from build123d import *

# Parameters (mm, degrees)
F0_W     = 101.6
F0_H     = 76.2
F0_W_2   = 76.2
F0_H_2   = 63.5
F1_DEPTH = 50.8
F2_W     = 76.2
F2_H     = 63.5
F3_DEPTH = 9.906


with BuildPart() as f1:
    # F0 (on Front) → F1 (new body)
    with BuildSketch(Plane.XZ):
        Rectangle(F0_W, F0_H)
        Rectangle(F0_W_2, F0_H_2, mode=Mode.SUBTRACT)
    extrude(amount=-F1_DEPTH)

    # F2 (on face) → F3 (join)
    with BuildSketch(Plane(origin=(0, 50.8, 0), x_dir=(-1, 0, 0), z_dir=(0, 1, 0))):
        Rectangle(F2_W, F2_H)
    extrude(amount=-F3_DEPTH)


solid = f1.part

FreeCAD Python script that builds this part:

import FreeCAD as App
import Part
import Sketcher
Q = App.Units.Quantity


def add_polygon(sketch, points):
    """Adds a closed chain of lines whose ends are joined by coincident constraints."""
    first, n = sketch.GeometryCount, len(points)
    for a, b in zip(points, points[1:] + points[:1]):
        sketch.addGeometry(Part.LineSegment(App.Vector(*a, 0), App.Vector(*b, 0)), False)
    for i in range(n):
        sketch.addConstraint(Sketcher.Constraint("Coincident", first + i, 2, first + (i + 1) % n, 1))

doc = App.newDocument("Part")
body = doc.addObject("PartDesign::Body", "Body")

sketch1 = doc.addObject("Sketcher::SketchObject", "Sketch")
body.addObject(sketch1)
sketch1.AttachmentSupport = (doc.XZ_Plane, [""])
sketch1.MapMode = "FlatFace"
add_polygon(sketch1, [(-51, 38), (-51, -38), (51, -38), (51, 38)])
add_polygon(sketch1, [(38, -32), (-38, -32), (-38, 32), (38, 32)])
sketch1.addConstraint([
    Sketcher.Constraint("Vertical", 0),
    Sketcher.Constraint("Horizontal", 1),
    Sketcher.Constraint("Vertical", 2),
    Sketcher.Constraint("Horizontal", 3),
    Sketcher.Constraint("Horizontal", 4),
    Sketcher.Constraint("Vertical", 5),
    Sketcher.Constraint("Horizontal", 6),
    Sketcher.Constraint("Vertical", 7),
    Sketcher.Constraint("Symmetric", 0, 2, 2, 2, -1, 1),
    Sketcher.Constraint("Symmetric", 4, 2, 6, 2, -1, 1),
    Sketcher.Constraint("Equal", 6, 0),
    Sketcher.Constraint("DistanceX", 1, 1, 1, 2, Q("4 in")),
    Sketcher.Constraint("DistanceX", 4, 2, 4, 1, Q("3 in")),
    Sketcher.Constraint("DistanceY", 5, 1, 5, 2, Q("2.5 in")),
])
pad1 = doc.addObject("PartDesign::Pad", "Pad")
body.addObject(pad1)
pad1.Profile = sketch1
pad1.Length = Q("2 in")
pad1.Reversed = True

sketch2 = doc.addObject("Sketcher::SketchObject", "Sketch001")
body.addObject(sketch2)
sketch2.AttachmentSupport = (doc.XZ_Plane, [""])
sketch2.MapMode = "FlatFace"
sketch2.AttachmentOffset = App.Placement(App.Vector(0, 0, -2 * 25.4), App.Rotation())
add_polygon(sketch2, [(38, 32), (38, -32), (-38, -32), (-38, 32)])
sketch2.addConstraint([
    Sketcher.Constraint("Vertical", 0),
    Sketcher.Constraint("Horizontal", 1),
    Sketcher.Constraint("Vertical", 2),
    Sketcher.Constraint("Horizontal", 3),
    Sketcher.Constraint("Symmetric", 0, 2, 2, 2, -1, 1),
    Sketcher.Constraint("DistanceX", 1, 2, 1, 1, Q("3 in")),
    Sketcher.Constraint("DistanceY", 0, 2, 0, 1, Q("2.5 in")),
])
pad2 = doc.addObject("PartDesign::Pad", "Pad001")
body.addObject(pad2)
pad2.Profile = sketch2
pad2.Length = Q("0.39 in")

doc.recompute()
